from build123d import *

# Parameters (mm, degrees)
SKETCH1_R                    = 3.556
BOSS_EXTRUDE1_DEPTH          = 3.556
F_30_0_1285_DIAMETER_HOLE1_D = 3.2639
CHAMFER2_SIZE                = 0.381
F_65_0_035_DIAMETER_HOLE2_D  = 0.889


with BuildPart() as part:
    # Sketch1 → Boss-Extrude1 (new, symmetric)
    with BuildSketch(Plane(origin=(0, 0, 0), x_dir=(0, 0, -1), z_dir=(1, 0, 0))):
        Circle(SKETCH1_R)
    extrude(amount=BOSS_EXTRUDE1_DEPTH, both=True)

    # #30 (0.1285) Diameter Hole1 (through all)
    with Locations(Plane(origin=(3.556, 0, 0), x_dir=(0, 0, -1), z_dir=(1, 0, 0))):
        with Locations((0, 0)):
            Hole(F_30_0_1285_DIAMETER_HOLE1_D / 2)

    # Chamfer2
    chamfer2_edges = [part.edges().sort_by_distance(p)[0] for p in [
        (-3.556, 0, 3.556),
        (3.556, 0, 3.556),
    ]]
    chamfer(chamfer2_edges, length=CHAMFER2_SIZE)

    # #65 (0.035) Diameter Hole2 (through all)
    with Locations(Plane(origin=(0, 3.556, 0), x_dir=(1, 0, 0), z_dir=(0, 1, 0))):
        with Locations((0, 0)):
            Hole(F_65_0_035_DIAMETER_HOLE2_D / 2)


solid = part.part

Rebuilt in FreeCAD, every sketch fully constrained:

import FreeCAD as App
import Part
import Sketcher
from FreeCAD import Vector
Q = App.Units.Quantity


def edges_at(feature, points):
    """Names of the edges that pass closest to the given points."""
    edges = feature.Shape.Edges
    near = lambda p: min(range(len(edges)), key=lambda i: edges[i].distToShape(Part.Vertex(*p))[0])
    return sorted({f"Edge{near(p) + 1}" for p in points})

doc = App.newDocument("Part")
params = doc.addObject("Spreadsheet::Sheet", "Params")
for row, (alias, value) in enumerate([
    ("sketch1_diameter", "0.28 in"),
    ("pad1_length", "0.28 in"),
    ("hole_diameter", "0.1285 in"),
    ("chamfer_size", "0.015 in"),
    ("sketch3_diameter", "0.035 in"),
    ("hole2_diameter", "0.035 in"),
], start=1):
    params.set(f"A{row}", alias)
    params.set(f"B{row}", "=" + value)
    params.setAlias(f"B{row}", alias)

body = doc.addObject("PartDesign::Body", "Body")

sketch1 = body.newObject("Sketcher::SketchObject", "Sketch")
sketch1.AttachmentSupport = (doc.getObject("YZ_Plane"), [""])
sketch1.MapMode = "FlatFace"
sketch1.addGeometry(Part.Circle(Vector(0, 0, 0), Vector(0, 0, 1), 3.6), False)
sketch1.addConstraint([
    Sketcher.Constraint("Coincident", 0, 3, -1, 1),
    Sketcher.Constraint("Diameter", 0, Q("0.28 in")),
])
sketch1.setExpression("Constraints[1]", "Params.sketch1_diameter")
pad1 = body.newObject("PartDesign::Pad", "Pad")
pad1.Profile = sketch1
pad1.setExpression("Length", "Params.pad1_length")
pad1.Midplane = True

sketch2 = body.newObject("Sketcher::SketchObject", "Sketch001")
sketch2.AttachmentSupport = (doc.getObject("YZ_Plane"), [""])
sketch2.MapMode = "FlatFace"
sketch2.AttachmentOffset = App.Placement(Vector(0, 0, 0.14 * 25.4), App.Rotation())
sketch2.addGeometry(Part.Circle(Vector(0, 0, 0), Vector(0, 0, 1), 1.6), False)
sketch2.addConstraint([
    Sketcher.Constraint("Coincident", 0, 3, -1, 1),
    Sketcher.Constraint("Diameter", 0, Q("0.1285 in")),
])
doc.recompute()
hole = body.newObject("PartDesign::Hole", "Hole")
hole.Profile = sketch2
hole.ThreadType = "None"
hole.setExpression("Diameter", "Params.hole_diameter")
hole.DepthType = "ThroughAll"
doc.recompute()

chamfer = body.newObject("PartDesign::Chamfer", "Chamfer")
chamfer.Base = (hole, edges_at(hole, [(-3.556, 0, 3.556), (3.556, 0, 3.556)]))
chamfer.setExpression("Size", "Params.chamfer_size")

sketch3 = body.newObject("Sketcher::SketchObject", "Sketch002")
sketch3.AttachmentSupport = (doc.getObject("XZ_Plane"), [""])
sketch3.MapMode = "FlatFace"
sketch3.AttachmentOffset = App.Placement(Vector(0, 0, -0.14 * 25.4), App.Rotation())
sketch3.addGeometry(Part.Circle(Vector(0, 0, 0), Vector(0, 0, 1), 0.44), False)
sketch3.addConstraint([
    Sketcher.Constraint("Coincident", 0, 3, -1, 1),
    Sketcher.Constraint("Diameter", 0, Q("0.035 in")),
])
sketch3.setExpression("Constraints[1]", "Params.sketch3_diameter")
doc.recompute()
hole2 = body.newObject("PartDesign::Hole", "Hole001")
hole2.Profile = sketch3
hole2.ThreadType = "None"
hole2.setExpression("Diameter", "Params.hole2_diameter")
hole2.DepthType = "ThroughAll"
hole2.Reversed = True

doc.recompute()
